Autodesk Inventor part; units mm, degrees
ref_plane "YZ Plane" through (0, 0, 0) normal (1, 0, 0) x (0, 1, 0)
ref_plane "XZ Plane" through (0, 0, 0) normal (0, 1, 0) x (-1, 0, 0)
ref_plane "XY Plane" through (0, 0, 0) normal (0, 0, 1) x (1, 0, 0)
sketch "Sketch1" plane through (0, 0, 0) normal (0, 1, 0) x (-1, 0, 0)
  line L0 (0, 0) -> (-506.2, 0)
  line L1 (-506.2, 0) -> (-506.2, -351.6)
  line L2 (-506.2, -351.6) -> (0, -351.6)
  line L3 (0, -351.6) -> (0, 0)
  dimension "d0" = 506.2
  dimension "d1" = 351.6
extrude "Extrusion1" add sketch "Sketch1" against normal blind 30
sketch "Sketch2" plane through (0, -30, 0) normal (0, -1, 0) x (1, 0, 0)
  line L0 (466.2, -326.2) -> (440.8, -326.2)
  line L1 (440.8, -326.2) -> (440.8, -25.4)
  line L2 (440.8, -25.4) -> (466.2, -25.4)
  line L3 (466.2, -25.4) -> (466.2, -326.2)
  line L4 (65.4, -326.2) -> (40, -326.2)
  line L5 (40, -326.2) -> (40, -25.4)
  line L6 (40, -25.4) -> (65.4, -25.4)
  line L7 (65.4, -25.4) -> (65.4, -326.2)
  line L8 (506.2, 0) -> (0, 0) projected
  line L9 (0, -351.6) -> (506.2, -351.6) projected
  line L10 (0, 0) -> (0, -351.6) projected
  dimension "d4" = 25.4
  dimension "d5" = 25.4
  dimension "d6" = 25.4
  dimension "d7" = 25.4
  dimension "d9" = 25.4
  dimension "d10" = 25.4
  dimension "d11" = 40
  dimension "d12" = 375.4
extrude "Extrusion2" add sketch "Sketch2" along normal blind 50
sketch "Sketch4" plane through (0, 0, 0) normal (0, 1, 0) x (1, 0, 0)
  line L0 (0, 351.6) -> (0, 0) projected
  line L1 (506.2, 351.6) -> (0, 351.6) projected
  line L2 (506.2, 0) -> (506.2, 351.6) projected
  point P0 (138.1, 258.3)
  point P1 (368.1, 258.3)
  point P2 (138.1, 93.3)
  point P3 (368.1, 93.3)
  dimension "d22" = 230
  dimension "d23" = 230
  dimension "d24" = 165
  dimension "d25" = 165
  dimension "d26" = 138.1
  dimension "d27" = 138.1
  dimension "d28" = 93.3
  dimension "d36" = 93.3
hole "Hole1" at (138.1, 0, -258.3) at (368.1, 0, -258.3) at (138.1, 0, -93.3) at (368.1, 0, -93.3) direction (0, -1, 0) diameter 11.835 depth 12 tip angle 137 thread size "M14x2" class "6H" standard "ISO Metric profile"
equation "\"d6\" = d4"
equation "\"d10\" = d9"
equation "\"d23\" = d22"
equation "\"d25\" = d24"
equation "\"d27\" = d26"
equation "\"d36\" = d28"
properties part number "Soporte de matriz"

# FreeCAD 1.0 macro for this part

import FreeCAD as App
import Part
import Sketcher
Q = App.Units.Quantity

doc = App.newDocument("Part")
body = doc.addObject("PartDesign::Body", "Body")

# Sketch on XZ plane
sketch1 = body.newObject("Sketcher::SketchObject", "Sketch")
sketch1.AttachmentSupport = (doc.getObject("XZ_Plane"), [""])
sketch1.MapMode = "FlatFace"
sketch1.addGeometry(Part.LineSegment(App.Vector(0, -351.6, 0), App.Vector(0, 0, 0)), False)
sketch1.addGeometry(Part.LineSegment(App.Vector(0, 0, 0), App.Vector(506.2, 0, 0)), False)
sketch1.addGeometry(Part.LineSegment(App.Vector(506.2, 0, 0), App.Vector(506.2, -351.6, 0)), False)
sketch1.addGeometry(Part.LineSegment(App.Vector(506.2, -351.6, 0), App.Vector(0, -351.6, 0)), False)
sketch1.addConstraint(Sketcher.Constraint("Coincident", 0, 2, 1, 1))
sketch1.addConstraint(Sketcher.Constraint("Coincident", 1, 2, 2, 1))
sketch1.addConstraint(Sketcher.Constraint("Coincident", 2, 2, 3, 1))
sketch1.addConstraint(Sketcher.Constraint("Coincident", 3, 2, 0, 1))
sketch1.addConstraint(Sketcher.Constraint("Vertical", 0))
sketch1.addConstraint(Sketcher.Constraint("Horizontal", 1))
sketch1.addConstraint(Sketcher.Constraint("Vertical", 2))
sketch1.addConstraint(Sketcher.Constraint("Horizontal", 3))
sketch1.addConstraint(Sketcher.Constraint("Coincident", 0, 2, -1, 1))
sketch1.addConstraint(Sketcher.Constraint("DistanceX", 1, 1, 1, 2, Q("506.2 mm")))
sketch1.addConstraint(Sketcher.Constraint("DistanceY", 0, 1, 0, 2, Q("351.6 mm")))
pad1 = body.newObject("PartDesign::Pad", "Pad")
pad1.Profile = sketch1
pad1.Length = 30

# Sketch on XZ plane
sketch2 = body.newObject("Sketcher::SketchObject", "Sketch001")
sketch2.AttachmentSupport = (doc.getObject("XZ_Plane"), [""])
sketch2.MapMode = "FlatFace"
sketch2.AttachmentOffset = App.Placement(App.Vector(0, 0, 30), App.Rotation())
sketch2.addGeometry(Part.LineSegment(App.Vector(440.8, -326.2, 0), App.Vector(466.2, -326.2, 0)), False)
sketch2.addGeometry(Part.LineSegment(App.Vector(466.2, -326.2, 0), App.Vector(466.2, -25.4, 0)), False)
sketch2.addGeometry(Part.LineSegment(App.Vector(466.2, -25.4, 0), App.Vector(440.8, -25.4, 0)), False)
sketch2.addGeometry(Part.LineSegment(App.Vector(440.8, -25.4, 0), App.Vector(440.8, -326.2, 0)), False)
sketch2.addGeometry(Part.LineSegment(App.Vector(40, -326.2, 0), App.Vector(65.4, -326.2, 0)), False)
sketch2.addGeometry(Part.LineSegment(App.Vector(65.4, -326.2, 0), App.Vector(65.4, -25.4, 0)), False)
sketch2.addGeometry(Part.LineSegment(App.Vector(65.4, -25.4, 0), App.Vector(40, -25.4, 0)), False)
sketch2.addGeometry(Part.LineSegment(App.Vector(40, -25.4, 0), App.Vector(40, -326.2, 0)), False)
sketch2.addConstraint(Sketcher.Constraint("Coincident", 0, 2, 1, 1))
sketch2.addConstraint(Sketcher.Constraint("Coincident", 1, 2, 2, 1))
sketch2.addConstraint(Sketcher.Constraint("Coincident", 2, 2, 3, 1))
sketch2.addConstraint(Sketcher.Constraint("Coincident", 3, 2, 0, 1))
sketch2.addConstraint(Sketcher.Constraint("Coincident", 4, 2, 5, 1))
sketch2.addConstraint(Sketcher.Constraint("Coincident", 5, 2, 6, 1))
sketch2.addConstraint(Sketcher.Constraint("Coincident", 6, 2, 7, 1))
sketch2.addConstraint(Sketcher.Constraint("Coincident", 7, 2, 4, 1))
sketch2.addConstraint(Sketcher.Constraint("Horizontal", 0))
sketch2.addConstraint(Sketcher.Constraint("Vertical", 1))
sketch2.addConstraint(Sketcher.Constraint("Horizontal", 2))
sketch2.addConstraint(Sketcher.Constraint("Vertical", 3))
sketch2.addConstraint(Sketcher.Constraint("Horizontal", 4))
sketch2.addConstraint(Sketcher.Constraint("Vertical", 5))
sketch2.addConstraint(Sketcher.Constraint("Horizontal", 6))
sketch2.addConstraint(Sketcher.Constraint("Vertical", 7))
sketch2.addConstraint(Sketcher.Constraint("Horizontal", 3, 2, 4, 2))
sketch2.addConstraint(Sketcher.Constraint("Horizontal", 2, 2, 5, 2))
sketch2.addConstraint(Sketcher.Constraint("Equal", 2, 4))
sketch2.addConstraint(Sketcher.Constraint("DistanceX", 0, 1, 0, 2, Q("25.4 mm")))
sketch2.addConstraint(Sketcher.Constraint("DistanceX", -1, 1, 6, 2, Q("40 mm")))
sketch2.addConstraint(Sketcher.Constraint("DistanceY", 1, 2, -1, 1, Q("25.4 mm")))
sketch2.addConstraint(Sketcher.Constraint("DistanceX", 4, 2, 3, 2, Q("375.4 mm")))
sketch2.addConstraint(Sketcher.Constraint("DistanceY", 1, 1, 1, 2, Q("300.8 mm")))
pad2 = body.newObject("PartDesign::Pad", "Pad001")
pad2.Profile = sketch2
pad2.Length = 50

# Sketch on XZ plane
sketch3 = body.newObject("Sketcher::SketchObject", "Sketch002")
sketch3.AttachmentSupport = (doc.getObject("XZ_Plane"), [""])
sketch3.MapMode = "FlatFace"
sketch3.addGeometry(Part.Circle(App.Vector(138.1, -258.3, 0), App.Vector(0, 0, 1), 5.9175), False)
sketch3.addGeometry(Part.Circle(App.Vector(368.1, -258.3, 0), App.Vector(0, 0, 1), 5.9175), False)
sketch3.addGeometry(Part.Circle(App.Vector(138.1, -93.3, 0), App.Vector(0, 0, 1), 5.9175), False)
sketch3.addGeometry(Part.Circle(App.Vector(368.1, -93.3, 0), App.Vector(0, 0, 1), 5.9175), False)
sketch3.addConstraint(Sketcher.Constraint("Equal", 0, 1))
sketch3.addConstraint(Sketcher.Constraint("Equal", 1, 2))
sketch3.addConstraint(Sketcher.Constraint("Equal", 2, 3))
sketch3.addConstraint(Sketcher.Constraint("Horizontal", 0, 3, 1, 3))
sketch3.addConstraint(Sketcher.Constraint("Horizontal", 2, 3, 3, 3))
sketch3.addConstraint(Sketcher.Constraint("Vertical", 0, 3, 2, 3))
sketch3.addConstraint(Sketcher.Constraint("Vertical", 1, 3, 3, 3))
sketch3.addConstraint(Sketcher.Constraint("Diameter", 0, Q("11.835 mm")))
sketch3.addConstraint(Sketcher.Constraint("DistanceX", 0, 3, 1, 3, Q("230 mm")))
sketch3.addConstraint(Sketcher.Constraint("DistanceY", 0, 3, 2, 3, Q("165 mm")))
sketch3.addConstraint(Sketcher.Constraint("DistanceX", -1, 1, 0, 3, Q("138.1 mm")))
sketch3.addConstraint(Sketcher.Constraint("DistanceY", 0, 3, -1, 1, Q("258.3 mm")))
doc.recompute()
hole = body.newObject("PartDesign::Hole", "Hole")
hole.Profile = sketch3
hole.ThreadType = "None"
hole.Diameter = 11.835
hole.DepthType = "Dimension"
hole.Depth = 12
hole.DrillPoint = "Angled"
hole.DrillPointAngle = 137
hole.Reversed = True

doc.recompute()
